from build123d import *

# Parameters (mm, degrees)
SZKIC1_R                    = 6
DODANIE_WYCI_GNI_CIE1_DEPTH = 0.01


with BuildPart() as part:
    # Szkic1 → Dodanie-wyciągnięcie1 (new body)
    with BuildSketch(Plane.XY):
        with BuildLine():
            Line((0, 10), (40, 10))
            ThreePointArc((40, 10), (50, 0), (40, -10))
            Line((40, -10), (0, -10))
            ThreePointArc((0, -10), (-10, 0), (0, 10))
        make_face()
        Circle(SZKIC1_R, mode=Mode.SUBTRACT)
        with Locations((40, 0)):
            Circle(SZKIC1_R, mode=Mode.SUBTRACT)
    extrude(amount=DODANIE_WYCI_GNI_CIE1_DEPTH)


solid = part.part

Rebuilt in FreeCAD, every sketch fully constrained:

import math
import FreeCAD as App
import Part
import Sketcher
from FreeCAD import Vector
Q = App.Units.Quantity

doc = App.newDocument("Part")
params = doc.addObject("Spreadsheet::Sheet", "Params")
for row, (alias, value) in enumerate([
    ("sketch1_diameter", "12 mm"),
    ("sketch1_radius", "10 mm"),
    ("sketch1_width", "40 mm"),
    ("pad1_length", "0.01 mm"),
], start=1):
    params.set(f"A{row}", alias)
    params.set(f"B{row}", "=" + value)
    params.setAlias(f"B{row}", alias)

body = doc.addObject("PartDesign::Body", "Body")

sketch1 = body.newObject("Sketcher::SketchObject", "Sketch")
sketch1.AttachmentSupport = (doc.getObject("XY_Plane"), [""])
sketch1.MapMode = "FlatFace"
sketch1.addGeometry([
    Part.LineSegment(Vector(40, 10, 0), Vector(0, 10, 0)),
    Part.ArcOfCircle(Part.Circle(Vector(0, 0, 0), Vector(0, 0, 1), 10), math.radians(90), math.radians(270)),
    Part.LineSegment(Vector(0, -10, 0), Vector(40, -10, 0)),
    Part.ArcOfCircle(Part.Circle(Vector(40, 0, 0), Vector(0, 0, 1), 10), math.radians(-90), math.radians(90)),
    Part.Circle(Vector(40, 0, 0), Vector(0, 0, 1), 6),
    Part.Circle(Vector(0, 0, 0), Vector(0, 0, 1), 6),
], False)
sketch1.addConstraint([
    Sketcher.Constraint("Tangent", 0, 2, 1, 1),
    Sketcher.Constraint("Tangent", 1, 2, 2, 1),
    Sketcher.Constraint("Tangent", 2, 2, 3, 1),
    Sketcher.Constraint("Tangent", 3, 2, 0, 1),
    Sketcher.Constraint("Horizontal", 0),
    Sketcher.Constraint("Horizontal", 2),
    Sketcher.Constraint("Coincident", 1, 3, -1, 1),
    Sketcher.Constraint("Coincident", 5, 3, -1, 1),
    Sketcher.Constraint("Coincident", 4, 3, 3, 3),
    Sketcher.Constraint("Equal", 4, 5),
    Sketcher.Constraint("Diameter", 4, Q("12 mm")),
    Sketcher.Constraint("Radius", 1, Q("10 mm")),
    Sketcher.Constraint("DistanceX", 0, 2, 0, 1, Q("40 mm")),
])
sketch1.setExpression("Constraints[10]", "Params.sketch1_diameter")
sketch1.setExpression("Constraints[11]", "Params.sketch1_radius")
sketch1.setExpression("Constraints[12]", "Params.sketch1_width")
pad1 = body.newObject("PartDesign::Pad", "Pad")
pad1.Profile = sketch1
pad1.setExpression("Length", "Params.pad1_length")

doc.recompute()
